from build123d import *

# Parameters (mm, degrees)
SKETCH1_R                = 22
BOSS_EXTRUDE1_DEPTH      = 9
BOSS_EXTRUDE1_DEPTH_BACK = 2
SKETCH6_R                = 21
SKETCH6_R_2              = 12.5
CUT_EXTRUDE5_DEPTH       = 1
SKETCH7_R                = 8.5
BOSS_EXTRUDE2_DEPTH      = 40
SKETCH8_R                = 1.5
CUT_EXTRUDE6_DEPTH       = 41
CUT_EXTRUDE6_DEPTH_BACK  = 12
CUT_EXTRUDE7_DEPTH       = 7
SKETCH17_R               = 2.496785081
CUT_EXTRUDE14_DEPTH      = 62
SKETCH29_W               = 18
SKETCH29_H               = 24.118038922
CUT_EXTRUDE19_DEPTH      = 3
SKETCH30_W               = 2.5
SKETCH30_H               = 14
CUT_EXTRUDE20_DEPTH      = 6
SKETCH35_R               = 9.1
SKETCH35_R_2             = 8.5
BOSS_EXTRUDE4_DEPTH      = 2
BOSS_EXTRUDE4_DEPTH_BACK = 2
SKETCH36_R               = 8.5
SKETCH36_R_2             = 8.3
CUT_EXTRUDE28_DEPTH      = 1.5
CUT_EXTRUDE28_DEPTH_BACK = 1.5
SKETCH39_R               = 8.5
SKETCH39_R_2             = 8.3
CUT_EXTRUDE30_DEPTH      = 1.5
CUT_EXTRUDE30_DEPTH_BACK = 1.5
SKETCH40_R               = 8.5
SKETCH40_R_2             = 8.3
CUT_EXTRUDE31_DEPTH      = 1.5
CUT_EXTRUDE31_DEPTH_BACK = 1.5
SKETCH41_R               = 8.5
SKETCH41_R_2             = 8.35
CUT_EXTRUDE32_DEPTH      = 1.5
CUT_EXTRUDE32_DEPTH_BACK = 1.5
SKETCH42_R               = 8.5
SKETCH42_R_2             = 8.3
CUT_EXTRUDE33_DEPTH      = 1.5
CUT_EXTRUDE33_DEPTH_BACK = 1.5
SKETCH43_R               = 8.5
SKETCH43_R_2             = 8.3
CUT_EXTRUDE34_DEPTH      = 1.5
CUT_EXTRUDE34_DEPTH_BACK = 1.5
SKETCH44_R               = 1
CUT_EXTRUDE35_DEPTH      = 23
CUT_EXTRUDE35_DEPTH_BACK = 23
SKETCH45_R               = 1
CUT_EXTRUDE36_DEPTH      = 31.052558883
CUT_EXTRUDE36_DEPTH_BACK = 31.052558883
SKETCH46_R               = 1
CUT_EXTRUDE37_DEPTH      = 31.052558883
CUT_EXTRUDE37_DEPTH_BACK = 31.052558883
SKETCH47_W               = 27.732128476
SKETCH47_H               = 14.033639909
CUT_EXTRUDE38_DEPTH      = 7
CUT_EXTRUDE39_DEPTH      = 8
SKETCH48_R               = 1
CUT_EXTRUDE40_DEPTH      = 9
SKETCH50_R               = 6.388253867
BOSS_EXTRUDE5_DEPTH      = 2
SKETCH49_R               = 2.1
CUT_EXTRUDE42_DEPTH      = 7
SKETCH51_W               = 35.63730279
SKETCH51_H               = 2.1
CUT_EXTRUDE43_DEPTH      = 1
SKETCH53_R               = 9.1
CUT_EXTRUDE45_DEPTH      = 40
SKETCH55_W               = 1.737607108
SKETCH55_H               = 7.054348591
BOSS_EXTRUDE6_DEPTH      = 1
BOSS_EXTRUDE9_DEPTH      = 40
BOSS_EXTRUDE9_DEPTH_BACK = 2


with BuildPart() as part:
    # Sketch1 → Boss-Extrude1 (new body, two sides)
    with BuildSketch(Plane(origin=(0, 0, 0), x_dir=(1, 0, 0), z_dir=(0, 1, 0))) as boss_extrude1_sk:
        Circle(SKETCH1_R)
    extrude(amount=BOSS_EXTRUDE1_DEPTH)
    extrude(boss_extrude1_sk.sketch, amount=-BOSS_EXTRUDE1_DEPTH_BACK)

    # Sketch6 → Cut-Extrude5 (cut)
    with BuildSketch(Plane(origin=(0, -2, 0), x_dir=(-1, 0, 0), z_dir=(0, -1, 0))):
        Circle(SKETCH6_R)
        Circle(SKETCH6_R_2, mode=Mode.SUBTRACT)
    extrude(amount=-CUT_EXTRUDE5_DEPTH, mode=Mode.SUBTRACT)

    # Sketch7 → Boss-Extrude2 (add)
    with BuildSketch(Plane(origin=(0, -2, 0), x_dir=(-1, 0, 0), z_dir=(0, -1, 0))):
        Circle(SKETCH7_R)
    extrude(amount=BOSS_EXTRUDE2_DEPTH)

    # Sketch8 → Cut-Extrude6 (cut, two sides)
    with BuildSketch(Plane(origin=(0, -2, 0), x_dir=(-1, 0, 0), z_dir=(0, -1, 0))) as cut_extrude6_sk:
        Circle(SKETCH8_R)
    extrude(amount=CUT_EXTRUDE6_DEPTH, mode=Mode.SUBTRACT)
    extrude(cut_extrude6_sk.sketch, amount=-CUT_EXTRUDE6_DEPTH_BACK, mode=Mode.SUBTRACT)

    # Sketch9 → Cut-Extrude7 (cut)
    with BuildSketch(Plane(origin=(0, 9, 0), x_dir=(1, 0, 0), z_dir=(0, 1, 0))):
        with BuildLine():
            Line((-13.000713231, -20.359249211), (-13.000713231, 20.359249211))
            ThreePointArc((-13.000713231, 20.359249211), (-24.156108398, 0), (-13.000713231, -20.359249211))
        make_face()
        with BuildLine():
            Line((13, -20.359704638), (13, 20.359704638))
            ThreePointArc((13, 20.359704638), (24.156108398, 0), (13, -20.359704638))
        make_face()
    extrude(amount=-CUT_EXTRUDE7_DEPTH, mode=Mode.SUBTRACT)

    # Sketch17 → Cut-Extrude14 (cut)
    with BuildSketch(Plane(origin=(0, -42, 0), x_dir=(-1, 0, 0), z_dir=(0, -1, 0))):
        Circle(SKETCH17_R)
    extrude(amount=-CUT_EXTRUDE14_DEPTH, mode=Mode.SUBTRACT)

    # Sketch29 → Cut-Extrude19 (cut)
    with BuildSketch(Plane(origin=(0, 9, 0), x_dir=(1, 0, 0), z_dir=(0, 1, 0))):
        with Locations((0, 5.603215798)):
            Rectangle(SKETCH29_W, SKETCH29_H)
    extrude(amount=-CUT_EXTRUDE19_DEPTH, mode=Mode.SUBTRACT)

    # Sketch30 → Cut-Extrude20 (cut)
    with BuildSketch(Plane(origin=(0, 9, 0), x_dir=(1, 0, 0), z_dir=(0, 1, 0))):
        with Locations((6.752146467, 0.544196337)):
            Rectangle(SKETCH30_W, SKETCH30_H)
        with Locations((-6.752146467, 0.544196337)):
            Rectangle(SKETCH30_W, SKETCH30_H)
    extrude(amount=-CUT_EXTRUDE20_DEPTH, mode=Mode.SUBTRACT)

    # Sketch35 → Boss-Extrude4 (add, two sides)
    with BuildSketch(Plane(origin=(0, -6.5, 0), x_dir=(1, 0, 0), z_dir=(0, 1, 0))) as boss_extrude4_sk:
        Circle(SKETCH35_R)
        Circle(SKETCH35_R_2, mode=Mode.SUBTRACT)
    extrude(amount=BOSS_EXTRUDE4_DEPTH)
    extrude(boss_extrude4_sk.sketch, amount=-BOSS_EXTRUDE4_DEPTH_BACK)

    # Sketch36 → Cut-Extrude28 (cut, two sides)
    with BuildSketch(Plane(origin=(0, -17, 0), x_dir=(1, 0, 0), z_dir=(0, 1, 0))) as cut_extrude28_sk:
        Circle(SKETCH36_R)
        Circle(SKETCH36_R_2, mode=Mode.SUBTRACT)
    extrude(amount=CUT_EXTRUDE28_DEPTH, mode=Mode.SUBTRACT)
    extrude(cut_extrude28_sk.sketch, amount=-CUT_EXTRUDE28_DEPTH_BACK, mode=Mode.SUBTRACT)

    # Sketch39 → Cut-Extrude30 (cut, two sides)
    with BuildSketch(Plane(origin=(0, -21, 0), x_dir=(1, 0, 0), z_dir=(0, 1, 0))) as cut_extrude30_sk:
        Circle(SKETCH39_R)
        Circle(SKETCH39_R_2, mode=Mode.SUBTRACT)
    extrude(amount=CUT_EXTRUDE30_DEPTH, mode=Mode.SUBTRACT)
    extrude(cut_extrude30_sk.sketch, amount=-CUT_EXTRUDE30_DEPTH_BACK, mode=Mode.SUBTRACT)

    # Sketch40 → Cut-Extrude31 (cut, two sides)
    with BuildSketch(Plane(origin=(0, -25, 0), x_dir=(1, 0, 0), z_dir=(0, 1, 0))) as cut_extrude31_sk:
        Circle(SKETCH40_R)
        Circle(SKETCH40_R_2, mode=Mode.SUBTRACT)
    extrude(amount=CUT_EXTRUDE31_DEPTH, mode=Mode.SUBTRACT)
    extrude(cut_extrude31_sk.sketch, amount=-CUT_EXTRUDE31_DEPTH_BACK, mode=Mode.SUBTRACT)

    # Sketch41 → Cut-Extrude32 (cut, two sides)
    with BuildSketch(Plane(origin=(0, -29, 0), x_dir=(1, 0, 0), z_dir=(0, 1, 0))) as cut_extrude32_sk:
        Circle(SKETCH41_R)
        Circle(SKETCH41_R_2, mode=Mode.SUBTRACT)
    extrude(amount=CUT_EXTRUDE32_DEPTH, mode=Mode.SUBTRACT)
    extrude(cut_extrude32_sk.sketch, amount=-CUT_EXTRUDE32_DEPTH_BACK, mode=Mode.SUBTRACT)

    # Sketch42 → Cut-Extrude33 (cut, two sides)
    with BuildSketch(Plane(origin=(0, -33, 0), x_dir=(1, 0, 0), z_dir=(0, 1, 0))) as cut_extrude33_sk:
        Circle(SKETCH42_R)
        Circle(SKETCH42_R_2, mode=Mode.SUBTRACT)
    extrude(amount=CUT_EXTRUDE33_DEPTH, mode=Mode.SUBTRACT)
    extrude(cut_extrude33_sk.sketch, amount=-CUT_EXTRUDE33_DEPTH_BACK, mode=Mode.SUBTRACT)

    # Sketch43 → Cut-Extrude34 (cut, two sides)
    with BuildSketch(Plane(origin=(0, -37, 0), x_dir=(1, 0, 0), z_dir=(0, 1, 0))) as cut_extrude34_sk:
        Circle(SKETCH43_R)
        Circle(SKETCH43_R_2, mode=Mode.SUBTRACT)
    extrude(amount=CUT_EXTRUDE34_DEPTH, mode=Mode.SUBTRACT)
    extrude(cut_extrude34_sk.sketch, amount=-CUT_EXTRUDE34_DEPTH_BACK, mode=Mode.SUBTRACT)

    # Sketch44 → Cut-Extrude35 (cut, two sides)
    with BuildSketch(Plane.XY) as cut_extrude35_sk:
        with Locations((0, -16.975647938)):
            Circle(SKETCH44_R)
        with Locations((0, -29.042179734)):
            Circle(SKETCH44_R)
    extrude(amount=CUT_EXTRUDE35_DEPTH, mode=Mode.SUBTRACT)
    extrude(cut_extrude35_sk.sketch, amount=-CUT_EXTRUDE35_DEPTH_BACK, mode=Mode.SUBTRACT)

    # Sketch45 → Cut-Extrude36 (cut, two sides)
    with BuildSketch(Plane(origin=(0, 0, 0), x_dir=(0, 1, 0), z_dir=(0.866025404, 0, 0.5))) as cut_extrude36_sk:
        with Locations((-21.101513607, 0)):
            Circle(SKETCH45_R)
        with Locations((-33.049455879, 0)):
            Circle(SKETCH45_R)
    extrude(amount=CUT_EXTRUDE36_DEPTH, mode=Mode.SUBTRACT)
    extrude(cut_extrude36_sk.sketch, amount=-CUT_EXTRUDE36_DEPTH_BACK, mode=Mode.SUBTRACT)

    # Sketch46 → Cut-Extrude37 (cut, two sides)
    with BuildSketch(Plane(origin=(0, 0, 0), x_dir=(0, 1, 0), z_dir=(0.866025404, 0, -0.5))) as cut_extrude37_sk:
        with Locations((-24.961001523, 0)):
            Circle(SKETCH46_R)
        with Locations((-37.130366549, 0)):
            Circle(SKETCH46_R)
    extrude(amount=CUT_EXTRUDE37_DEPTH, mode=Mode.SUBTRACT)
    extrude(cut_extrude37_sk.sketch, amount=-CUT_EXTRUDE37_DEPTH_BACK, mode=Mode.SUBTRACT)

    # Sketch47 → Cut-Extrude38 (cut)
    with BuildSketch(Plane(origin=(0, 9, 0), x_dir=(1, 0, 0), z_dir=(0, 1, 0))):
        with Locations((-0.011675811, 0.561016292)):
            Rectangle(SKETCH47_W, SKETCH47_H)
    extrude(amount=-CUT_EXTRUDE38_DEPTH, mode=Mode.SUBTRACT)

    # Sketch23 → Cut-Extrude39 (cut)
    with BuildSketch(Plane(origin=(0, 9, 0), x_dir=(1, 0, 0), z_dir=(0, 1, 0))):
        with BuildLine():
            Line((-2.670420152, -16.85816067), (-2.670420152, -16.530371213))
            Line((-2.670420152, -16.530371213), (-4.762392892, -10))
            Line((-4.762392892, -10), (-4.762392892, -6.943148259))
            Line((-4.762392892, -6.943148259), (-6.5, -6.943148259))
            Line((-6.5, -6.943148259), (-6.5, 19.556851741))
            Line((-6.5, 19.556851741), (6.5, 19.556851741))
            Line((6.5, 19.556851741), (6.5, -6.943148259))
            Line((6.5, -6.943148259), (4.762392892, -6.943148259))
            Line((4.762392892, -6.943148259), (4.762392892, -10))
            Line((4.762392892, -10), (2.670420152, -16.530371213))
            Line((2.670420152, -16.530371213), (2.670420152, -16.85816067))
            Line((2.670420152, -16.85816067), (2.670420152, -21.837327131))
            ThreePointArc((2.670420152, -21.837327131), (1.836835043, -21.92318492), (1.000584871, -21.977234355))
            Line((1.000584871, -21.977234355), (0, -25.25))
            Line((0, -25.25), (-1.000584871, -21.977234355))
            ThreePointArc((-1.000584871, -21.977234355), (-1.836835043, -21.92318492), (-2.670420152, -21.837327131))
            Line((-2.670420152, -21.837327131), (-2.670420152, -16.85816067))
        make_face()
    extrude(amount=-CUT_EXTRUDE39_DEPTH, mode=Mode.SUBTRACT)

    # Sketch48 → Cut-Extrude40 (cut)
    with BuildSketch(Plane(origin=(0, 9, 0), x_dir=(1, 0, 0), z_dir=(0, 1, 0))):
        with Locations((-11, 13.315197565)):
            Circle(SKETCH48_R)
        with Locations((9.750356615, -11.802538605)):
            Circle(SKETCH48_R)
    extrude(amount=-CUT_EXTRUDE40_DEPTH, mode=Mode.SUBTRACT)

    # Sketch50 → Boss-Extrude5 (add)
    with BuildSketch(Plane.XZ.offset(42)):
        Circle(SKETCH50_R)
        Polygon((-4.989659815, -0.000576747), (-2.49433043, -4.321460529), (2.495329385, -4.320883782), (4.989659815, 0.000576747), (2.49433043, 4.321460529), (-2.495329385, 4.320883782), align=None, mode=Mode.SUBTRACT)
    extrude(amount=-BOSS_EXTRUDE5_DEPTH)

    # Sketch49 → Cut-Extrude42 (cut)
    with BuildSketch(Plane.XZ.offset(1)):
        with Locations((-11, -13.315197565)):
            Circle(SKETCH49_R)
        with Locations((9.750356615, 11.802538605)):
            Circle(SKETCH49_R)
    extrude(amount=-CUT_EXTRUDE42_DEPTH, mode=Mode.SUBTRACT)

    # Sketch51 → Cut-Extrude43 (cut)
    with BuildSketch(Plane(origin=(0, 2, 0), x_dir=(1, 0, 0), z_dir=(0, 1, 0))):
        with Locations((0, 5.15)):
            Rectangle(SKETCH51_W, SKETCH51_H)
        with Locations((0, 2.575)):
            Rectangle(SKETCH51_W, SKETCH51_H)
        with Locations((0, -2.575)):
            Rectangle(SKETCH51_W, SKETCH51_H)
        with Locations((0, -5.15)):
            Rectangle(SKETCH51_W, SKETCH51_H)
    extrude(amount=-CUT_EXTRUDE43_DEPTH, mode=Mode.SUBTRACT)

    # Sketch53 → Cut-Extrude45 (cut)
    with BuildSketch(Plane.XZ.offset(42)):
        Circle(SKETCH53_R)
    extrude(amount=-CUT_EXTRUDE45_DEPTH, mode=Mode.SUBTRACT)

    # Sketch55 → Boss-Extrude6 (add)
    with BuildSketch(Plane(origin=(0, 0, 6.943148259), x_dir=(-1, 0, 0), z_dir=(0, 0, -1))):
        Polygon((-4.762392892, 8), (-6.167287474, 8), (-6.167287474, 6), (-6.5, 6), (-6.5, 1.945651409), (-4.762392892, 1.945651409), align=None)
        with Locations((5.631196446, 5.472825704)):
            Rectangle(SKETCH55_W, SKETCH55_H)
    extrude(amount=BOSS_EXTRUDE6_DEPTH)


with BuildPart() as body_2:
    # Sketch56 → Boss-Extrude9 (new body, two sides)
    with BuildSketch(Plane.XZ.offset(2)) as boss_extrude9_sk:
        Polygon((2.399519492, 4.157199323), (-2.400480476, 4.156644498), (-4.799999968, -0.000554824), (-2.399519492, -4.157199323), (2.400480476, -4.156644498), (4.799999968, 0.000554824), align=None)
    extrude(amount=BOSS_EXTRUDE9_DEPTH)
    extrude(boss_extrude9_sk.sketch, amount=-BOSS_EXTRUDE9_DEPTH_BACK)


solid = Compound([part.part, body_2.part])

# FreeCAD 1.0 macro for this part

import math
import FreeCAD as App
import Part
import Sketcher
Q = App.Units.Quantity

doc = App.newDocument("Part")
body = doc.addObject("PartDesign::Body", "Body")

# Sketch on XZ plane
sketch1 = body.newObject("Sketcher::SketchObject", "Sketch")
sketch1.AttachmentSupport = (doc.getObject("XZ_Plane"), [""])
sketch1.MapMode = "FlatFace"
sketch1.addGeometry(Part.Circle(App.Vector(0, 0, 0), App.Vector(0, 0, 1), 22), False)
sketch1.addConstraint([
    Sketcher.Constraint("Coincident", 0, 3, -1, 1),
    Sketcher.Constraint("Diameter", 0, 44.0),
])
pad1 = body.newObject("PartDesign::Pad", "Pad")
pad1.Profile = sketch1
pad1.Type = "TwoLengths"
pad1.Length = 9
pad1.Length2 = 2
pad1.Reversed = True

# Sketch on XZ plane
sketch2 = body.newObject("Sketcher::SketchObject", "Sketch001")
sketch2.AttachmentSupport = (doc.getObject("XZ_Plane"), [""])
sketch2.MapMode = "FlatFace"
sketch2.AttachmentOffset = App.Placement(App.Vector(0, 0, 2), App.Rotation())
sketch2.addGeometry([
    Part.Circle(App.Vector(0, 0, 0), App.Vector(0, 0, 1), 21),
    Part.Circle(App.Vector(0, 0, 0), App.Vector(0, 0, 1), 12),
], False)
sketch2.addConstraint([
    Sketcher.Constraint("Coincident", 0, 3, -1, 1),
    Sketcher.Constraint("Coincident", 1, 3, -1, 1),
    Sketcher.Constraint("Diameter", 0, 42.0),
    Sketcher.Constraint("Diameter", 1, 25.0),
])
pocket1 = body.newObject("PartDesign::Pocket", "Pocket")
pocket1.Profile = sketch2
pocket1.Length = 1

# Sketch on XZ plane
sketch3 = body.newObject("Sketcher::SketchObject", "Sketch002")
sketch3.AttachmentSupport = (doc.getObject("XZ_Plane"), [""])
sketch3.MapMode = "FlatFace"
sketch3.AttachmentOffset = App.Placement(App.Vector(0, 0, 2), App.Rotation())
sketch3.addGeometry(Part.Circle(App.Vector(0, 0, 0), App.Vector(0, 0, 1), 8), False)
sketch3.addConstraint([
    Sketcher.Constraint("Coincident", 0, 3, -1, 1),
    Sketcher.Constraint("Diameter", 0, 17.0),
])
pad2 = body.newObject("PartDesign::Pad", "Pad001")
pad2.Profile = sketch3
pad2.Length = 40

# Sketch on XZ plane
sketch4 = body.newObject("Sketcher::SketchObject", "Sketch003")
sketch4.AttachmentSupport = (doc.getObject("XZ_Plane"), [""])
sketch4.MapMode = "FlatFace"
sketch4.AttachmentOffset = App.Placement(App.Vector(0, 0, 2), App.Rotation())
sketch4.addGeometry(Part.Circle(App.Vector(0, 0, 0), App.Vector(0, 0, 1), 1.5), False)
sketch4.addConstraint([
    Sketcher.Constraint("Coincident", 0, 3, -1, 1),
    Sketcher.Constraint("Diameter", 0, 3.0),
])
pocket2 = body.newObject("PartDesign::Pocket", "Pocket001")
pocket2.Profile = sketch4
pocket2.Type = "ThroughAll"
pocket2.Midplane = True

# Sketch on XZ plane
sketch5 = body.newObject("Sketcher::SketchObject", "Sketch004")
sketch5.AttachmentSupport = (doc.getObject("XZ_Plane"), [""])
sketch5.MapMode = "FlatFace"
sketch5.AttachmentOffset = App.Placement(App.Vector(0, 0, -9), App.Rotation())
sketch5.addGeometry([
    Part.LineSegment(App.Vector(-13, 20, 0), App.Vector(-13, -20, 0)),
    Part.ArcOfCircle(Part.Circle(App.Vector(0, 0, 0), App.Vector(0, 0, 1), 24), math.radians(123), math.radians(237)),
    Part.LineSegment(App.Vector(13, -20, 0), App.Vector(13, 20, 0)),
    Part.ArcOfCircle(Part.Circle(App.Vector(0, 0, 0), App.Vector(0, 0, 1), 24), math.radians(-57), math.radians(57)),
], False)
sketch5.addConstraint([
    Sketcher.Constraint("Coincident", 0, 1, 1, 1),
    Sketcher.Constraint("Coincident", 1, 2, 0, 2),
    Sketcher.Constraint("Coincident", 2, 1, 3, 1),
    Sketcher.Constraint("Coincident", 3, 2, 2, 2),
    Sketcher.Constraint("Vertical", 0),
    Sketcher.Constraint("Vertical", 2),
    Sketcher.Constraint("Coincident", 1, 3, -1, 1),
    Sketcher.Constraint("Coincident", 3, 3, -1, 1),
    Sketcher.Constraint("Equal", 1, 3),
    Sketcher.Constraint("DistanceX", -1, 1, 2, 1, 13.0),
    Sketcher.Constraint("Radius", 1, 24.156108),
    Sketcher.Constraint("DistanceY", 0, 2, 0, 1, 40.718498),
])
pocket3 = body.newObject("PartDesign::Pocket", "Pocket002")
pocket3.Profile = sketch5
pocket3.Length = 7
pocket3.Reversed = True

# Sketch on XZ plane
sketch6 = body.newObject("Sketcher::SketchObject", "Sketch005")
sketch6.AttachmentSupport = (doc.getObject("XZ_Plane"), [""])
sketch6.MapMode = "FlatFace"
sketch6.AttachmentOffset = App.Placement(App.Vector(0, 0, 42), App.Rotation())
sketch6.addGeometry(Part.Circle(App.Vector(0, 0, 0), App.Vector(0, 0, 1), 2.5), False)
sketch6.addConstraint([
    Sketcher.Constraint("Coincident", 0, 3, -1, 1),
    Sketcher.Constraint("Diameter", 0, 4.99357),
])
pocket4 = body.newObject("PartDesign::Pocket", "Pocket003")
pocket4.Profile = sketch6
pocket4.Length = 62

# Sketch on XZ plane
sketch7 = body.newObject("Sketcher::SketchObject", "Sketch006")
sketch7.AttachmentSupport = (doc.getObject("XZ_Plane"), [""])
sketch7.MapMode = "FlatFace"
sketch7.AttachmentOffset = App.Placement(App.Vector(0, 0, -9), App.Rotation())
sketch7.addGeometry([
    Part.LineSegment(App.Vector(-9, -18, 0), App.Vector(-9, 6, 0)),
    Part.LineSegment(App.Vector(-9, 6, 0), App.Vector(9, 6, 0)),
    Part.LineSegment(App.Vector(9, 6, 0), App.Vector(9, -18, 0)),
    Part.LineSegment(App.Vector(9, -18, 0), App.Vector(-9, -18, 0)),
], False)
sketch7.addConstraint([
    Sketcher.Constraint("Coincident", 0, 2, 1, 1),
    Sketcher.Constraint("Coincident", 1, 2, 2, 1),
    Sketcher.Constraint("Coincident", 2, 2, 3, 1),
    Sketcher.Constraint("Coincident", 3, 2, 0, 1),
    Sketcher.Constraint("Vertical", 0),
    Sketcher.Constraint("Horizontal", 1),
    Sketcher.Constraint("Vertical", 2),
    Sketcher.Constraint("Horizontal", 3),
    Sketcher.Constraint("DistanceX", 1, 1, 1, 2, 18.0),
    Sketcher.Constraint("DistanceX", 0, 2, -1, 1, 9.0),
    Sketcher.Constraint("DistanceY", 0, 1, 0, 2, 24.118039),
    Sketcher.Constraint("DistanceY", -1, 1, 0, 2, 6.455804),
])
pocket5 = body.newObject("PartDesign::Pocket", "Pocket004")
pocket5.Profile = sketch7
pocket5.Length = 3
pocket5.Reversed = True

# Sketch on XZ plane
sketch8 = body.newObject("Sketcher::SketchObject", "Sketch007")
sketch8.AttachmentSupport = (doc.getObject("XZ_Plane"), [""])
sketch8.MapMode = "FlatFace"
sketch8.AttachmentOffset = App.Placement(App.Vector(0, 0, -9), App.Rotation())
sketch8.addGeometry([
    Part.LineSegment(App.Vector(5.5, -7.5, 0), App.Vector(5.5, 6.5, 0)),  # 0
    Part.LineSegment(App.Vector(5.5, 6.5, 0), App.Vector(8, 6.5, 0)),  # 1
    Part.LineSegment(App.Vector(8, 6.5, 0), App.Vector(8, -7.5, 0)),  # 2
    Part.LineSegment(App.Vector(8, -7.5, 0), App.Vector(5.5, -7.5, 0)),  # 3
    Part.LineSegment(App.Vector(-8, -7.5, 0), App.Vector(-8, 6.5, 0)),  # 4
    Part.LineSegment(App.Vector(-8, 6.5, 0), App.Vector(-5.5, 6.5, 0)),  # 5
    Part.LineSegment(App.Vector(-5.5, 6.5, 0), App.Vector(-5.5, -7.5, 0)),  # 6
    Part.LineSegment(App.Vector(-5.5, -7.5, 0), App.Vector(-8, -7.5, 0)),  # 7
], False)
sketch8.addConstraint([
    Sketcher.Constraint("Coincident", 0, 2, 1, 1),
    Sketcher.Constraint("Coincident", 1, 2, 2, 1),
    Sketcher.Constraint("Coincident", 2, 2, 3, 1),
    Sketcher.Constraint("Coincident", 3, 2, 0, 1),
    Sketcher.Constraint("Coincident", 4, 2, 5, 1),
    Sketcher.Constraint("Coincident", 5, 2, 6, 1),
    Sketcher.Constraint("Coincident", 6, 2, 7, 1),
    Sketcher.Constraint("Coincident", 7, 2, 4, 1),
    Sketcher.Constraint("Vertical", 0),
    Sketcher.Constraint("Horizontal", 1),
    Sketcher.Constraint("Vertical", 2),
    Sketcher.Constraint("Horizontal", 3),
    Sketcher.Constraint("Vertical", 4),
    Sketcher.Constraint("Horizontal", 5),
    Sketcher.Constraint("Vertical", 6),
    Sketcher.Constraint("Horizontal", 7),
    Sketcher.Constraint("Symmetric", 1, 2, 4, 2, -2),
    Sketcher.Constraint("Symmetric", 3, 2, 6, 2, -2),
    Sketcher.Constraint("DistanceY", 0, 1, 0, 2, 14.0),
    Sketcher.Constraint("DistanceX", 1, 1, 1, 2, 2.5),
    Sketcher.Constraint("DistanceX", -1, 1, 0, 2, 5.502146),
    Sketcher.Constraint("DistanceY", -1, 1, 0, 2, 6.455804),
])
pocket6 = body.newObject("PartDesign::Pocket", "Pocket005")
pocket6.Profile = sketch8
pocket6.Length = 6
pocket6.Reversed = True

# Sketch on XZ plane
sketch9 = body.newObject("Sketcher::SketchObject", "Sketch008")
sketch9.AttachmentSupport = (doc.getObject("XZ_Plane"), [""])
sketch9.MapMode = "FlatFace"
sketch9.AttachmentOffset = App.Placement(App.Vector(0, 0, 6.5), App.Rotation())
sketch9.addGeometry([
    Part.Circle(App.Vector(0, 0, 0), App.Vector(0, 0, 1), 9),
    Part.Circle(App.Vector(0, 0, 0), App.Vector(0, 0, 1), 8),
], False)
sketch9.addConstraint([
    Sketcher.Constraint("Coincident", 0, 3, -1, 1),
    Sketcher.Constraint("Coincident", 1, 3, -1, 1),
    Sketcher.Constraint("Diameter", 1, 17.0),
    Sketcher.Constraint("Diameter", 0, 18.2),
])
pad3 = body.newObject("PartDesign::Pad", "Pad002")
pad3.Profile = sketch9
pad3.Type = "TwoLengths"
pad3.Length = 2
pad3.Length2 = 2
pad3.Reversed = True

# Sketch on XZ plane
sketch10 = body.newObject("Sketcher::SketchObject", "Sketch009")
sketch10.AttachmentSupport = (doc.getObject("XZ_Plane"), [""])
sketch10.MapMode = "FlatFace"
sketch10.AttachmentOffset = App.Placement(App.Vector(0, 0, 17), App.Rotation())
sketch10.addGeometry([
    Part.Circle(App.Vector(0, 0, 0), App.Vector(0, 0, 1), 8),
    Part.Circle(App.Vector(0, 0, 0), App.Vector(0, 0, 1), 8),
], False)
sketch10.addConstraint([
    Sketcher.Constraint("Coincident", 0, 3, -1, 1),
    Sketcher.Constraint("Coincident", 1, 3, -1, 1),
    Sketcher.Constraint("Diameter", 0, 17.0),
    Sketcher.Constraint("Diameter", 1, 16.6),
])
pocket7 = body.newObject("PartDesign::Pocket", "Pocket006")
pocket7.Profile = sketch10
pocket7.Type = "TwoLengths"
pocket7.Length = 1.5
pocket7.Length2 = 1.5

# Sketch on XZ plane
sketch11 = body.newObject("Sketcher::SketchObject", "Sketch010")
sketch11.AttachmentSupport = (doc.getObject("XZ_Plane"), [""])
sketch11.MapMode = "FlatFace"
sketch11.AttachmentOffset = App.Placement(App.Vector(0, 0, 21), App.Rotation())
sketch11.addGeometry([
    Part.Circle(App.Vector(0, 0, 0), App.Vector(0, 0, 1), 8),
    Part.Circle(App.Vector(0, 0, 0), App.Vector(0, 0, 1), 8),
], False)
sketch11.addConstraint([
    Sketcher.Constraint("Coincident", 0, 3, -1, 1),
    Sketcher.Constraint("Coincident", 1, 3, -1, 1),
    Sketcher.Constraint("Diameter", 0, 17.0),
    Sketcher.Constraint("Diameter", 1, 16.6),
])
pocket8 = body.newObject("PartDesign::Pocket", "Pocket007")
pocket8.Profile = sketch11
pocket8.Type = "TwoLengths"
pocket8.Length = 1.5
pocket8.Length2 = 1.5

# Sketch on XZ plane
sketch12 = body.newObject("Sketcher::SketchObject", "Sketch011")
sketch12.AttachmentSupport = (doc.getObject("XZ_Plane"), [""])
sketch12.MapMode = "FlatFace"
sketch12.AttachmentOffset = App.Placement(App.Vector(0, 0, 25), App.Rotation())
sketch12.addGeometry([
    Part.Circle(App.Vector(0, 0, 0), App.Vector(0, 0, 1), 8),
    Part.Circle(App.Vector(0, 0, 0), App.Vector(0, 0, 1), 8),
], False)
sketch12.addConstraint([
    Sketcher.Constraint("Coincident", 0, 3, -1, 1),
    Sketcher.Constraint("Coincident", 1, 3, -1, 1),
    Sketcher.Constraint("Diameter", 0, 17.0),
    Sketcher.Constraint("Diameter", 1, 16.6),
])
pocket9 = body.newObject("PartDesign::Pocket", "Pocket008")
pocket9.Profile = sketch12
pocket9.Type = "TwoLengths"
pocket9.Length = 1.5
pocket9.Length2 = 1.5

# Sketch on XZ plane
sketch13 = body.newObject("Sketcher::SketchObject", "Sketch012")
sketch13.AttachmentSupport = (doc.getObject("XZ_Plane"), [""])
sketch13.MapMode = "FlatFace"
sketch13.AttachmentOffset = App.Placement(App.Vector(0, 0, 29), App.Rotation())
sketch13.addGeometry([
    Part.Circle(App.Vector(0, 0, 0), App.Vector(0, 0, 1), 8),
    Part.Circle(App.Vector(0, 0, 0), App.Vector(0, 0, 1), 8),
], False)
sketch13.addConstraint([
    Sketcher.Constraint("Coincident", 0, 3, -1, 1),
    Sketcher.Constraint("Coincident", 1, 3, -1, 1),
    Sketcher.Constraint("Diameter", 0, 17.0),
    Sketcher.Constraint("Diameter", 1, 16.7),
])
pocket10 = body.newObject("PartDesign::Pocket", "Pocket009")
pocket10.Profile = sketch13
pocket10.Type = "TwoLengths"
pocket10.Length = 1.5
pocket10.Length2 = 1.5

# Sketch on XZ plane
sketch14 = body.newObject("Sketcher::SketchObject", "Sketch013")
sketch14.AttachmentSupport = (doc.getObject("XZ_Plane"), [""])
sketch14.MapMode = "FlatFace"
sketch14.AttachmentOffset = App.Placement(App.Vector(0, 0, 33), App.Rotation())
sketch14.addGeometry([
    Part.Circle(App.Vector(0, 0, 0), App.Vector(0, 0, 1), 8),
    Part.Circle(App.Vector(0, 0, 0), App.Vector(0, 0, 1), 8),
], False)
sketch14.addConstraint([
    Sketcher.Constraint("Coincident", 0, 3, -1, 1),
    Sketcher.Constraint("Coincident", 1, 3, -1, 1),
    Sketcher.Constraint("Diameter", 0, 17.0),
    Sketcher.Constraint("Diameter", 1, 16.6),
])
pocket11 = body.newObject("PartDesign::Pocket", "Pocket010")
pocket11.Profile = sketch14
pocket11.Type = "TwoLengths"
pocket11.Length = 1.5
pocket11.Length2 = 1.5

# Sketch on XZ plane
sketch15 = body.newObject("Sketcher::SketchObject", "Sketch014")
sketch15.AttachmentSupport = (doc.getObject("XZ_Plane"), [""])
sketch15.MapMode = "FlatFace"
sketch15.AttachmentOffset = App.Placement(App.Vector(0, 0, 37), App.Rotation())
sketch15.addGeometry([
    Part.Circle(App.Vector(0, 0, 0), App.Vector(0, 0, 1), 8),
    Part.Circle(App.Vector(0, 0, 0), App.Vector(0, 0, 1), 8),
], False)
sketch15.addConstraint([
    Sketcher.Constraint("Coincident", 0, 3, -1, 1),
    Sketcher.Constraint("Coincident", 1, 3, -1, 1),
    Sketcher.Constraint("Diameter", 0, 17.0),
    Sketcher.Constraint("Diameter", 1, 16.6),
])
pocket12 = body.newObject("PartDesign::Pocket", "Pocket011")
pocket12.Profile = sketch15
pocket12.Type = "TwoLengths"
pocket12.Length = 1.5
pocket12.Length2 = 1.5

# Sketch on XY plane
sketch16 = body.newObject("Sketcher::SketchObject", "Sketch015")
sketch16.AttachmentSupport = (doc.getObject("XY_Plane"), [""])
sketch16.MapMode = "FlatFace"
sketch16.addGeometry([
    Part.Circle(App.Vector(0, -17, 0), App.Vector(0, 0, 1), 1),
    Part.Circle(App.Vector(0, -29, 0), App.Vector(0, 0, 1), 1),
], False)
sketch16.addConstraint([
    Sketcher.Constraint("Equal", 0, 1),
    Sketcher.Constraint("PointOnObject", 0, 3, -2),
    Sketcher.Constraint("PointOnObject", 1, 3, -2),
    Sketcher.Constraint("Diameter", 0, 2.0),
    Sketcher.Constraint("DistanceY", 1, 3, -1, 1, 29.04218),
    Sketcher.Constraint("DistanceY", 1, 3, 0, 3, 12.066532),
])
pocket13 = body.newObject("PartDesign::Pocket", "Pocket012")
pocket13.Profile = sketch16
pocket13.Type = "ThroughAll"
pocket13.Midplane = True

# Sketch on an angled plane
sketch17 = body.newObject("Sketcher::SketchObject", "Sketch016")
sketch17.Placement = App.Placement(App.Vector(0, 0, 0), App.Rotation(App.Vector(0, 1, 0), App.Vector(-0.5, 0, 0.866025404), App.Vector(0.866025404, 0, 0.5), "ZXY"))
sketch17.addGeometry([
    Part.Circle(App.Vector(-21.1, 0, 0), App.Vector(0, 0, 1), 1),
    Part.Circle(App.Vector(-33, 0, 0), App.Vector(0, 0, 1), 1),
], False)
sketch17.addConstraint([
    Sketcher.Constraint("Equal", 0, 1),
    Sketcher.Constraint("PointOnObject", 0, 3, -1),
    Sketcher.Constraint("PointOnObject", 1, 3, -1),
    Sketcher.Constraint("Diameter", 0, 2.0),
    Sketcher.Constraint("DistanceX", 0, 3, -1, 1, 21.101514),
    Sketcher.Constraint("DistanceX", 1, 3, -1, 1, 33.049456),
])
pocket14 = body.newObject("PartDesign::Pocket", "Pocket013")
pocket14.Profile = sketch17
pocket14.Type = "ThroughAll"
pocket14.Midplane = True

# Sketch on an angled plane
sketch18 = body.newObject("Sketcher::SketchObject", "Sketch017")
sketch18.Placement = App.Placement(App.Vector(0, 0, 0), App.Rotation(App.Vector(0, 1, 0), App.Vector(0.5, 0, 0.866025404), App.Vector(0.866025404, 0, -0.5), "ZXY"))
sketch18.addGeometry([
    Part.Circle(App.Vector(-25, 0, 0), App.Vector(0, 0, 1), 1),
    Part.Circle(App.Vector(-37.1, 0, 0), App.Vector(0, 0, 1), 1),
], False)
sketch18.addConstraint([
    Sketcher.Constraint("Equal", 0, 1),
    Sketcher.Constraint("PointOnObject", 0, 3, -1),
    Sketcher.Constraint("PointOnObject", 1, 3, -1),
    Sketcher.Constraint("Diameter", 0, 2.0),
    Sketcher.Constraint("DistanceX", 0, 3, -1, 1, 24.961002),
    Sketcher.Constraint("DistanceX", 1, 3, -1, 1, 37.130367),
])
pocket15 = body.newObject("PartDesign::Pocket", "Pocket014")
pocket15.Profile = sketch18
pocket15.Type = "ThroughAll"
pocket15.Midplane = True

# Sketch on XZ plane
sketch19 = body.newObject("Sketcher::SketchObject", "Sketch018")
sketch19.AttachmentSupport = (doc.getObject("XZ_Plane"), [""])
sketch19.MapMode = "FlatFace"
sketch19.AttachmentOffset = App.Placement(App.Vector(0, 0, -9), App.Rotation())
sketch19.addGeometry([
    Part.LineSegment(App.Vector(-14, -8, 0), App.Vector(-14, 6, 0)),
    Part.LineSegment(App.Vector(-14, 6, 0), App.Vector(14, 6, 0)),
    Part.LineSegment(App.Vector(14, 6, 0), App.Vector(14, -8, 0)),
    Part.LineSegment(App.Vector(14, -8, 0), App.Vector(-14, -8, 0)),
], False)
sketch19.addConstraint([
    Sketcher.Constraint("Coincident", 0, 2, 1, 1),
    Sketcher.Constraint("Coincident", 1, 2, 2, 1),
    Sketcher.Constraint("Coincident", 2, 2, 3, 1),
    Sketcher.Constraint("Coincident", 3, 2, 0, 1),
    Sketcher.Constraint("Vertical", 0),
    Sketcher.Constraint("Horizontal", 1),
    Sketcher.Constraint("Vertical", 2),
    Sketcher.Constraint("Horizontal", 3),
    Sketcher.Constraint("DistanceX", 1, 1, 1, 2, 27.732128),
    Sketcher.Constraint("DistanceY", 0, 1, 0, 2, 14.03364),
    Sketcher.Constraint("DistanceX", 0, 2, -1, 1, 13.87774),
    Sketcher.Constraint("DistanceY", -1, 1, 0, 2, 6.455804),
])
pocket16 = body.newObject("PartDesign::Pocket", "Pocket015")
pocket16.Profile = sketch19
pocket16.Length = 7
pocket16.Reversed = True

# Sketch on XZ plane
sketch20 = body.newObject("Sketcher::SketchObject", "Sketch019")
sketch20.AttachmentSupport = (doc.getObject("XZ_Plane"), [""])
sketch20.MapMode = "FlatFace"
sketch20.AttachmentOffset = App.Placement(App.Vector(0, 0, -9), App.Rotation())
sketch20.addGeometry([
    Part.LineSegment(App.Vector(-4.8, 10, 0), App.Vector(-2.7, 16.5, 0)),  # 0
    Part.LineSegment(App.Vector(-2.7, 16.5, 0), App.Vector(-2.7, 21.8, 0)),  # 1
    Part.ArcOfCircle(Part.Circle(App.Vector(0, 0, 0), App.Vector(0, 0, 1), 22), math.radians(92.61), math.radians(96.97)),  # 2
    Part.LineSegment(App.Vector(-1, 22, 0), App.Vector(0, 25.2, 0)),  # 3
    Part.LineSegment(App.Vector(0, 25.2, 0), App.Vector(1, 22, 0)),  # 4
    Part.ArcOfCircle(Part.Circle(App.Vector(0, 0, 0), App.Vector(0, 0, 1), 22), math.radians(83.03), math.radians(87.39)),  # 5
    Part.LineSegment(App.Vector(2.7, 21.8, 0), App.Vector(2.7, 16.5, 0)),  # 6
    Part.LineSegment(App.Vector(2.7, 16.5, 0), App.Vector(4.8, 10, 0)),  # 7
    Part.LineSegment(App.Vector(4.8, 10, 0), App.Vector(4.8, 6.9, 0)),  # 8
    Part.LineSegment(App.Vector(4.8, 6.9, 0), App.Vector(6.5, 6.9, 0)),  # 9
    Part.LineSegment(App.Vector(6.5, 6.9, 0), App.Vector(6.5, -19.6, 0)),  # 10
    Part.LineSegment(App.Vector(6.5, -19.6, 0), App.Vector(-6.5, -19.6, 0)),  # 11
    Part.LineSegment(App.Vector(-6.5, -19.6, 0), App.Vector(-6.5, 6.9, 0)),  # 12
    Part.LineSegment(App.Vector(-6.5, 6.9, 0), App.Vector(-4.8, 6.9, 0)),  # 13
    Part.LineSegment(App.Vector(-4.8, 6.9, 0), App.Vector(-4.8, 10, 0)),  # 14
], False)
sketch20.addConstraint([
    Sketcher.Constraint("Coincident", 0, 2, 1, 1),
    Sketcher.Constraint("Coincident", 1, 2, 2, 2),
    Sketcher.Constraint("Coincident", 2, 1, 3, 1),
    Sketcher.Constraint("Coincident", 3, 2, 4, 1),
    Sketcher.Constraint("Coincident", 4, 2, 5, 2),
    Sketcher.Constraint("Coincident", 5, 1, 6, 1),
    Sketcher.Constraint("Coincident", 6, 2, 7, 1),
    Sketcher.Constraint("Coincident", 7, 2, 8, 1),
    Sketcher.Constraint("Coincident", 8, 2, 9, 1),
    Sketcher.Constraint("Coincident", 9, 2, 10, 1),
    Sketcher.Constraint("Coincident", 10, 2, 11, 1),
    Sketcher.Constraint("Coincident", 11, 2, 12, 1),
    Sketcher.Constraint("Coincident", 12, 2, 13, 1),
    Sketcher.Constraint("Coincident", 13, 2, 14, 1),
    Sketcher.Constraint("Coincident", 14, 2, 0, 1),
    Sketcher.Constraint("Vertical", 1),
    Sketcher.Constraint("Vertical", 6),
    Sketcher.Constraint("Vertical", 8),
    Sketcher.Constraint("Horizontal", 9),
    Sketcher.Constraint("Vertical", 10),
    Sketcher.Constraint("Horizontal", 11),
    Sketcher.Constraint("Vertical", 12),
    Sketcher.Constraint("Horizontal", 13),
    Sketcher.Constraint("Vertical", 14),
    Sketcher.Constraint("Coincident", 2, 3, -1, 1),
    Sketcher.Constraint("Coincident", 5, 3, -1, 1),
    Sketcher.Constraint("Equal", 2, 5),
    Sketcher.Constraint("Symmetric", 0, 2, 6, 2, -2),
    Sketcher.Constraint("Symmetric", 9, 2, 12, 2, -2),
    Sketcher.Constraint("Symmetric", 7, 2, 14, 2, -2),
    Sketcher.Constraint("PointOnObject", 3, 2, -2),
    Sketcher.Constraint("Horizontal", 2, 1, 4, 2),
    Sketcher.Constraint("Radius", 2, 22.0),
    Sketcher.Constraint("DistanceX", 11, 2, 11, 1, 13.0),
    Sketcher.Constraint("Angle", 3, Q("73 deg")),
    Sketcher.Constraint("DistanceY", 10, 2, 10, 1, 26.5),
    Sketcher.Constraint("DistanceY", -1, 1, 7, 2, 10.0),
    Sketcher.Constraint("DistanceY", -1, 1, 3, 2, 25.25),
    Sketcher.Constraint("DistanceY", 8, 2, 8, 1, 3.056852),
    Sketcher.Constraint("DistanceX", 9, 1, 9, 2, 1.737607),
    Sketcher.Constraint("DistanceY", 1, 1, 1, 2, 5.306956),
    Sketcher.Constraint("DistanceX", 0, 2, -1, 1, 2.67042),
])
pocket17 = body.newObject("PartDesign::Pocket", "Pocket016")
pocket17.Profile = sketch20
pocket17.Length = 8
pocket17.Reversed = True

# Sketch on XZ plane
sketch21 = body.newObject("Sketcher::SketchObject", "Sketch020")
sketch21.AttachmentSupport = (doc.getObject("XZ_Plane"), [""])
sketch21.MapMode = "FlatFace"
sketch21.AttachmentOffset = App.Placement(App.Vector(0, 0, -9), App.Rotation())
sketch21.addGeometry([
    Part.Circle(App.Vector(-11, -13.3, 0), App.Vector(0, 0, 1), 1),
    Part.Circle(App.Vector(9.8, 11.8, 0), App.Vector(0, 0, 1), 1),
], False)
sketch21.addConstraint([
    Sketcher.Constraint("Equal", 0, 1),
    Sketcher.Constraint("Diameter", 0, 2.0),
    Sketcher.Constraint("DistanceX", 0, 3, -1, 1, 11.0),
    Sketcher.Constraint("DistanceY", -1, 1, 1, 3, 11.802539),
    Sketcher.Constraint("DistanceY", 0, 3, -1, 1, 13.315198),
    Sketcher.Constraint("DistanceX", -1, 1, 1, 3, 9.750357),
])
pocket18 = body.newObject("PartDesign::Pocket", "Pocket017")
pocket18.Profile = sketch21
pocket18.Length = 9
pocket18.Reversed = True

# Sketch on XZ plane
sketch22 = body.newObject("Sketcher::SketchObject", "Sketch021")
sketch22.AttachmentSupport = (doc.getObject("XZ_Plane"), [""])
sketch22.MapMode = "FlatFace"
sketch22.AttachmentOffset = App.Placement(App.Vector(0, 0, 42), App.Rotation())
sketch22.addGeometry([
    Part.Circle(App.Vector(0, 0, 0), App.Vector(0, 0, 1), 6.4),  # 0
    Part.LineSegment(App.Vector(-2.5, -4.3, 0), App.Vector(-5, 0, 0)),  # 1
    Part.LineSegment(App.Vector(-5, 0, 0), App.Vector(-2.5, 4.3, 0)),  # 2
    Part.LineSegment(App.Vector(-2.5, 4.3, 0), App.Vector(2.5, 4.3, 0)),  # 3
    Part.LineSegment(App.Vector(2.5, 4.3, 0), App.Vector(5, 0, 0)),  # 4
    Part.LineSegment(App.Vector(5, 0, 0), App.Vector(2.5, -4.3, 0)),  # 5
    Part.LineSegment(App.Vector(2.5, -4.3, 0), App.Vector(-2.5, -4.3, 0)),  # 6
], False)
sketch22.addConstraint([
    Sketcher.Constraint("Coincident", 1, 2, 2, 1),
    Sketcher.Constraint("Coincident", 2, 2, 3, 1),
    Sketcher.Constraint("Coincident", 3, 2, 4, 1),
    Sketcher.Constraint("Coincident", 4, 2, 5, 1),
    Sketcher.Constraint("Coincident", 5, 2, 6, 1),
    Sketcher.Constraint("Coincident", 6, 2, 1, 1),
    Sketcher.Constraint("Coincident", 0, 3, -1, 1),
    Sketcher.Constraint("Symmetric", 1, 2, 4, 2, -1, 1),
    Sketcher.Constraint("Symmetric", 2, 2, 5, 2, -1, 1),
    Sketcher.Constraint("Symmetric", 3, 2, 6, 2, -1, 1),
    Sketcher.Constraint("Equal", 1, 2),
    Sketcher.Constraint("Equal", 2, 3),
    Sketcher.Constraint("Diameter", 0, 12.776508),
    Sketcher.Constraint("DistanceX", 3, 2, 5, 2, 0.000999),
    Sketcher.Constraint("Distance", 1, 4.98966),
    Sketcher.Constraint("DistanceX", 1, 2, -1, 1, 4.98966),
    Sketcher.Constraint("DistanceY", -1, 1, 3, 2, 4.321461),
])
pad4 = body.newObject("PartDesign::Pad", "Pad003")
pad4.Profile = sketch22
pad4.Length = 2
pad4.Reversed = True

# Sketch on XZ plane
sketch23 = body.newObject("Sketcher::SketchObject", "Sketch022")
sketch23.AttachmentSupport = (doc.getObject("XZ_Plane"), [""])
sketch23.MapMode = "FlatFace"
sketch23.AttachmentOffset = App.Placement(App.Vector(0, 0, 1), App.Rotation())
sketch23.addGeometry([
    Part.Circle(App.Vector(-11, -13.3, 0), App.Vector(0, 0, 1), 2.1),
    Part.Circle(App.Vector(9.8, 11.8, 0), App.Vector(0, 0, 1), 2.1),
], False)
sketch23.addConstraint([
    Sketcher.Constraint("Equal", 0, 1),
    Sketcher.Constraint("Diameter", 0, 4.2),
    Sketcher.Constraint("DistanceX", 0, 3, -1, 1, 11.0),
    Sketcher.Constraint("DistanceY", -1, 1, 1, 3, 11.802539),
    Sketcher.Constraint("DistanceY", 0, 3, -1, 1, 13.315198),
    Sketcher.Constraint("DistanceX", -1, 1, 1, 3, 9.750357),
])
pocket19 = body.newObject("PartDesign::Pocket", "Pocket018")
pocket19.Profile = sketch23
pocket19.Length = 7

# Sketch on XZ plane
sketch24 = body.newObject("Sketcher::SketchObject", "Sketch023")
sketch24.AttachmentSupport = (doc.getObject("XZ_Plane"), [""])
sketch24.MapMode = "FlatFace"
sketch24.AttachmentOffset = App.Placement(App.Vector(0, 0, -2), App.Rotation())
sketch24.addGeometry([
    Part.LineSegment(App.Vector(-17.8, -6.2, 0), App.Vector(-17.8, -4.1, 0)),  # 0
    Part.LineSegment(App.Vector(-17.8, -4.1, 0), App.Vector(17.8, -4.1, 0)),  # 1
    Part.LineSegment(App.Vector(17.8, -4.1, 0), App.Vector(17.8, -6.2, 0)),  # 2
    Part.LineSegment(App.Vector(17.8, -6.2, 0), App.Vector(-17.8, -6.2, 0)),  # 3
    Part.LineSegment(App.Vector(-17.8, -3.6, 0), App.Vector(-17.8, -1.5, 0)),  # 4
    Part.LineSegment(App.Vector(-17.8, -1.5, 0), App.Vector(17.8, -1.5, 0)),  # 5
    Part.LineSegment(App.Vector(17.8, -1.5, 0), App.Vector(17.8, -3.6, 0)),  # 6
    Part.LineSegment(App.Vector(17.8, -3.6, 0), App.Vector(-17.8, -3.6, 0)),  # 7
    Part.LineSegment(App.Vector(-17.8, 1.5, 0), App.Vector(-17.8, 3.6, 0)),  # 8
    Part.LineSegment(App.Vector(-17.8, 3.6, 0), App.Vector(17.8, 3.6, 0)),  # 9
    Part.LineSegment(App.Vector(17.8, 3.6, 0), App.Vector(17.8, 1.5, 0)),  # 10
    Part.LineSegment(App.Vector(17.8, 1.5, 0), App.Vector(-17.8, 1.5, 0)),  # 11
    Part.LineSegment(App.Vector(-17.8, 4.1, 0), App.Vector(-17.8, 6.2, 0)),  # 12
    Part.LineSegment(App.Vector(-17.8, 6.2, 0), App.Vector(17.8, 6.2, 0)),  # 13
    Part.LineSegment(App.Vector(17.8, 6.2, 0), App.Vector(17.8, 4.1, 0)),  # 14
    Part.LineSegment(App.Vector(17.8, 4.1, 0), App.Vector(-17.8, 4.1, 0)),  # 15
], False)
sketch24.addConstraint([
    Sketcher.Constraint("Coincident", 0, 2, 1, 1),
    Sketcher.Constraint("Coincident", 1, 2, 2, 1),
    Sketcher.Constraint("Coincident", 2, 2, 3, 1),
    Sketcher.Constraint("Coincident", 3, 2, 0, 1),
    Sketcher.Constraint("Coincident", 4, 2, 5, 1),
    Sketcher.Constraint("Coincident", 5, 2, 6, 1),
    Sketcher.Constraint("Coincident", 6, 2, 7, 1),
    Sketcher.Constraint("Coincident", 7, 2, 4, 1),
    Sketcher.Constraint("Coincident", 8, 2, 9, 1),
    Sketcher.Constraint("Coincident", 9, 2, 10, 1),
    Sketcher.Constraint("Coincident", 10, 2, 11, 1),
    Sketcher.Constraint("Coincident", 11, 2, 8, 1),
    Sketcher.Constraint("Coincident", 12, 2, 13, 1),
    Sketcher.Constraint("Coincident", 13, 2, 14, 1),
    Sketcher.Constraint("Coincident", 14, 2, 15, 1),
    Sketcher.Constraint("Coincident", 15, 2, 12, 1),
    Sketcher.Constraint("Vertical", 0),
    Sketcher.Constraint("Horizontal", 1),
    Sketcher.Constraint("Vertical", 2),
    Sketcher.Constraint("Horizontal", 3),
    Sketcher.Constraint("Vertical", 4),
    Sketcher.Constraint("Horizontal", 5),
    Sketcher.Constraint("Vertical", 6),
    Sketcher.Constraint("Horizontal", 7),
    Sketcher.Constraint("Vertical", 8),
    Sketcher.Constraint("Horizontal", 9),
    Sketcher.Constraint("Vertical", 10),
    Sketcher.Constraint("Horizontal", 11),
    Sketcher.Constraint("Vertical", 12),
    Sketcher.Constraint("Horizontal", 13),
    Sketcher.Constraint("Vertical", 14),
    Sketcher.Constraint("Horizontal", 15),
    Sketcher.Constraint("Symmetric", 6, 2, 8, 2, -1, 1),
    Sketcher.Constraint("Symmetric", 4, 2, 10, 2, -1, 1),
    Sketcher.Constraint("Symmetric", 2, 2, 12, 2, -1, 1),
    Sketcher.Constraint("Symmetric", 0, 2, 14, 2, -1, 1),
    Sketcher.Constraint("Vertical", 3, 2, 4, 2),
    Sketcher.Constraint("Vertical", 2, 2, 5, 2),
    Sketcher.Constraint("Vertical", 7, 2, 8, 2),
    Sketcher.Constraint("Equal", 2, 4),
    Sketcher.Constraint("DistanceY", 0, 1, 0, 2, 2.1),
    Sketcher.Constraint("DistanceY", 0, 2, -1, 1, 4.1),
    Sketcher.Constraint("DistanceY", 4, 2, 8, 2, 5.15),
    Sketcher.Constraint("DistanceX", 1, 1, 1, 2, 35.637303),
])
pocket20 = body.newObject("PartDesign::Pocket", "Pocket019")
pocket20.Profile = sketch24
pocket20.Length = 1
pocket20.Reversed = True

# Sketch on XZ plane
sketch25 = body.newObject("Sketcher::SketchObject", "Sketch024")
sketch25.AttachmentSupport = (doc.getObject("XZ_Plane"), [""])
sketch25.MapMode = "FlatFace"
sketch25.AttachmentOffset = App.Placement(App.Vector(0, 0, 42), App.Rotation())
sketch25.addGeometry(Part.Circle(App.Vector(0, 0, 0), App.Vector(0, 0, 1), 9), False)
sketch25.addConstraint([
    Sketcher.Constraint("Coincident", 0, 3, -1, 1),
    Sketcher.Constraint("Diameter", 0, 18.2),
])
pocket21 = body.newObject("PartDesign::Pocket", "Pocket020")
pocket21.Profile = sketch25
pocket21.Length = 40

# Sketch on XY plane
sketch26 = body.newObject("Sketcher::SketchObject", "Sketch025")
sketch26.AttachmentSupport = (doc.getObject("XY_Plane"), [""])
sketch26.MapMode = "FlatFace"
sketch26.AttachmentOffset = App.Placement(App.Vector(0, 0, 6.943148), App.Rotation())
sketch26.addGeometry([
    Part.LineSegment(App.Vector(4.76, 8, 0), App.Vector(6.17, 8, 0)),  # 0
    Part.LineSegment(App.Vector(6.17, 8, 0), App.Vector(6.17, 6, 0)),  # 1
    Part.LineSegment(App.Vector(6.17, 6, 0), App.Vector(6.5, 6, 0)),  # 2
    Part.LineSegment(App.Vector(6.5, 6, 0), App.Vector(6.5, 1.95, 0)),  # 3
    Part.LineSegment(App.Vector(6.5, 1.95, 0), App.Vector(4.76, 1.95, 0)),  # 4
    Part.LineSegment(App.Vector(4.76, 1.95, 0), App.Vector(4.76, 8, 0)),  # 5
    Part.LineSegment(App.Vector(-4.76, 9, 0), App.Vector(-4.76, 1.95, 0)),  # 6
    Part.LineSegment(App.Vector(-4.76, 1.95, 0), App.Vector(-6.5, 1.95, 0)),  # 7
    Part.LineSegment(App.Vector(-6.5, 1.95, 0), App.Vector(-6.5, 9, 0)),  # 8
    Part.LineSegment(App.Vector(-6.5, 9, 0), App.Vector(-4.76, 9, 0)),  # 9
], False)
sketch26.addConstraint([
    Sketcher.Constraint("Coincident", 0, 2, 1, 1),
    Sketcher.Constraint("Coincident", 1, 2, 2, 1),
    Sketcher.Constraint("Coincident", 2, 2, 3, 1),
    Sketcher.Constraint("Coincident", 3, 2, 4, 1),
    Sketcher.Constraint("Coincident", 4, 2, 5, 1),
    Sketcher.Constraint("Coincident", 5, 2, 0, 1),
    Sketcher.Constraint("Coincident", 6, 2, 7, 1),
    Sketcher.Constraint("Coincident", 7, 2, 8, 1),
    Sketcher.Constraint("Coincident", 8, 2, 9, 1),
    Sketcher.Constraint("Coincident", 9, 2, 6, 1),
    Sketcher.Constraint("Horizontal", 0),
    Sketcher.Constraint("Vertical", 1),
    Sketcher.Constraint("Horizontal", 2),
    Sketcher.Constraint("Vertical", 3),
    Sketcher.Constraint("Horizontal", 4),
    Sketcher.Constraint("Vertical", 5),
    Sketcher.Constraint("Vertical", 6),
    Sketcher.Constraint("Horizontal", 7),
    Sketcher.Constraint("Vertical", 8),
    Sketcher.Constraint("Horizontal", 9),
    Sketcher.Constraint("Symmetric", 4, 2, 6, 2, -2),
    Sketcher.Constraint("Equal", 4, 7),
    Sketcher.Constraint("DistanceY", 1, 2, 1, 1, 2.0),
    Sketcher.Constraint("DistanceY", -1, 1, 0, 2, 8.0),
    Sketcher.Constraint("DistanceY", -1, 1, 8, 2, 9.0),
    Sketcher.Constraint("DistanceX", 7, 2, 3, 2, 13.0),
    Sketcher.Constraint("DistanceY", 3, 2, 3, 1, 4.054349),
    Sketcher.Constraint("DistanceX", 0, 1, 0, 2, 1.404895),
    Sketcher.Constraint("DistanceX", 2, 1, 2, 2, 0.332713),
])
pad5 = body.newObject("PartDesign::Pad", "Pad004")
pad5.Profile = sketch26
pad5.Length = 1
pad5.Reversed = True
body2 = doc.addObject("PartDesign::Body", "Body001")

# Sketch on XZ plane
sketch27 = body2.newObject("Sketcher::SketchObject", "Sketch026")
sketch27.AttachmentSupport = (doc.getObject("XZ_Plane001"), [""])
sketch27.MapMode = "FlatFace"
sketch27.AttachmentOffset = App.Placement(App.Vector(0, 0, 2), App.Rotation())
sketch27.addGeometry([
    Part.LineSegment(App.Vector(2.4, 4.2, 0), App.Vector(-2.4, 4.2, 0)),  # 0
    Part.LineSegment(App.Vector(-2.4, 4.2, 0), App.Vector(-4.8, 0, 0)),  # 1
    Part.LineSegment(App.Vector(-4.8, 0, 0), App.Vector(-2.4, -4.2, 0)),  # 2
    Part.LineSegment(App.Vector(-2.4, -4.2, 0), App.Vector(2.4, -4.2, 0)),  # 3
    Part.LineSegment(App.Vector(2.4, -4.2, 0), App.Vector(4.8, 0, 0)),  # 4
    Part.LineSegment(App.Vector(4.8, 0, 0), App.Vector(2.4, 4.2, 0)),  # 5
], False)
sketch27.addConstraint([
    Sketcher.Constraint("Coincident", 0, 2, 1, 1),
    Sketcher.Constraint("Coincident", 1, 2, 2, 1),
    Sketcher.Constraint("Coincident", 2, 2, 3, 1),
    Sketcher.Constraint("Coincident", 3, 2, 4, 1),
    Sketcher.Constraint("Coincident", 4, 2, 5, 1),
    Sketcher.Constraint("Coincident", 5, 2, 0, 1),
    Sketcher.Constraint("Symmetric", 0, 2, 3, 2, -1, 1),
    Sketcher.Constraint("Symmetric", 1, 2, 4, 2, -1, 1),
    Sketcher.Constraint("Symmetric", 2, 2, 5, 2, -1, 1),
    Sketcher.Constraint("Equal", 0, 1),
    Sketcher.Constraint("Equal", 1, 2),
    Sketcher.Constraint("Distance", 0, 4.8),
    Sketcher.Constraint("DistanceX", 1, 2, -1, 1, 4.8),
    Sketcher.Constraint("DistanceY", 2, 2, -1, 1, 4.157199),
    Sketcher.Constraint("DistanceY", 1, 2, 0, 2, 4.157199),
])
pad6 = body2.newObject("PartDesign::Pad", "Pad005")
pad6.Profile = sketch27
pad6.Type = "TwoLengths"
pad6.Length = 40
pad6.Length2 = 2

doc.recompute()
